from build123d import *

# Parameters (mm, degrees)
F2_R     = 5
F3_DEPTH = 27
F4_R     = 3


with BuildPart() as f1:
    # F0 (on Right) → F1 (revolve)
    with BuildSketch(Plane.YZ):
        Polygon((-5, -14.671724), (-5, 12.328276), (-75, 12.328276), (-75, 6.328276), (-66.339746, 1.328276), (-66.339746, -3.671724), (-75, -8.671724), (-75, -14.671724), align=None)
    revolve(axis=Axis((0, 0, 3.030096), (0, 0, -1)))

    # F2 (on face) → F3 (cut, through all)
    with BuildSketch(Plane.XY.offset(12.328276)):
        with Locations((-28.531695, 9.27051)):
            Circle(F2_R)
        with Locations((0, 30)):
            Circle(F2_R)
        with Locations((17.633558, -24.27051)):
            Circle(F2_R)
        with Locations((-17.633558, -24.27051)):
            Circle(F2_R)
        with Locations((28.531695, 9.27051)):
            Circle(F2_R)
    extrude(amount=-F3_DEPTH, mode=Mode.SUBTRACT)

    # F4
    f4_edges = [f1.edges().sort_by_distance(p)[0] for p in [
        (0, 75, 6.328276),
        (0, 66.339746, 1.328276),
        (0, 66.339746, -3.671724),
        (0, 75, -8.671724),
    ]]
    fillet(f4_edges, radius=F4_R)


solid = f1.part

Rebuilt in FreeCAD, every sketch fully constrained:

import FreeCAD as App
import Part
import Sketcher
from FreeCAD import Vector
Q = App.Units.Quantity


def edges_at(feature, points):
    """Names of the edges that pass closest to the given points."""
    edges = feature.Shape.Edges
    near = lambda p: min(range(len(edges)), key=lambda i: edges[i].distToShape(Part.Vertex(*p))[0])
    return sorted({f"Edge{near(p) + 1}" for p in points})


def add_polygon(sketch, points):
    """Adds a closed chain of lines whose ends are joined by coincident constraints."""
    first, n = sketch.GeometryCount, len(points)
    for a, b in zip(points, points[1:] + points[:1]):
        sketch.addGeometry(Part.LineSegment(App.Vector(*a, 0), App.Vector(*b, 0)), False)
    for i in range(n):
        sketch.addConstraint(Sketcher.Constraint("Coincident", first + i, 2, first + (i + 1) % n, 1))

doc = App.newDocument("Part")
body = doc.addObject("PartDesign::Body", "Body")

# Sketch on YZ plane
sketch1 = body.newObject("Sketcher::SketchObject", "Sketch")
sketch1.AttachmentSupport = (doc.getObject("YZ_Plane"), [""])
sketch1.MapMode = "FlatFace"
add_polygon(sketch1, [(-5, -15), (-5, 12), (-75, 12), (-75, 6), (-66, 1), (-66, -4), (-75, -9), (-75, -15)])  # lines 0-7
sketch1.addConstraint([
    Sketcher.Constraint("Vertical", 0),
    Sketcher.Constraint("Horizontal", 1),
    Sketcher.Constraint("Vertical", 2),
    Sketcher.Constraint("Vertical", 4),
    Sketcher.Constraint("Vertical", 6),
    Sketcher.Constraint("Horizontal", 7),
    Sketcher.Constraint("Vertical", 2, 2, 5, 2),
    Sketcher.Constraint("Equal", 2, 6),
    Sketcher.Constraint("Equal", 3, 5),
    Sketcher.Constraint("DistanceX", 1, 2, 1, 1, Q("70 mm")),
    Sketcher.Constraint("DistanceY", 0, 1, 0, 2, Q("27 mm")),
    Sketcher.Constraint("DistanceY", 2, 2, 2, 1, Q("6 mm")),
    Sketcher.Constraint("DistanceY", 4, 2, 4, 1, Q("5 mm")),
    Sketcher.Constraint("Angle", 3, Q("-30 deg")),
    Sketcher.Constraint("DistanceX", 0, 2, -1, 1, Q("5 mm")),
    Sketcher.Constraint("DistanceY", -1, 1, 0, 2, Q("12.328276 mm")),
])
revolution = body.newObject("PartDesign::Revolution", "Revolution")
revolution.Profile = sketch1
revolution.ReferenceAxis = (sketch1, ["V_Axis"])
revolution.Angle = 360

# Sketch on XY plane
sketch2 = body.newObject("Sketcher::SketchObject", "Sketch001")
sketch2.AttachmentSupport = (doc.getObject("XY_Plane"), [""])
sketch2.MapMode = "FlatFace"
sketch2.AttachmentOffset = App.Placement(Vector(0, 0, 12.328276), App.Rotation())
sketch2.addGeometry([
    Part.Circle(Vector(-29, 9, 0), Vector(0, 0, 1), 5),  # 0
    Part.Circle(Vector(0, 30, 0), Vector(0, 0, 1), 5),  # 1
    Part.Circle(Vector(18, -24, 0), Vector(0, 0, 1), 5),  # 2
    Part.Circle(Vector(-18, -24, 0), Vector(0, 0, 1), 5),  # 3
    Part.Circle(Vector(29, 9, 0), Vector(0, 0, 1), 5),  # 4
], False)
sketch2.addConstraint([
    Sketcher.Constraint("Equal", 0, 1),
    Sketcher.Constraint("Equal", 1, 2),
    Sketcher.Constraint("Equal", 2, 3),
    Sketcher.Constraint("Equal", 3, 4),
    Sketcher.Constraint("Symmetric", 2, 3, 3, 3, -2),
    Sketcher.Constraint("Symmetric", 0, 3, 4, 3, -2),
    Sketcher.Constraint("PointOnObject", 1, 3, -2),
    Sketcher.Constraint("Diameter", 0, Q("10 mm")),
    Sketcher.Constraint("DistanceY", -1, 1, 1, 3, Q("30 mm")),
    Sketcher.Constraint("DistanceY", -1, 1, 0, 3, Q("9.27051 mm")),
    Sketcher.Constraint("DistanceX", -1, 1, 2, 3, Q("17.633558 mm")),
    Sketcher.Constraint("DistanceY", 2, 3, -1, 1, Q("24.27051 mm")),
    Sketcher.Constraint("DistanceX", 0, 3, 4, 3, Q("57.06339 mm")),
])
pocket1 = body.newObject("PartDesign::Pocket", "Pocket")
pocket1.Profile = sketch2
pocket1.Type = "ThroughAll"
doc.recompute()

fillet = body.newObject("PartDesign::Fillet", "Fillet")
fillet.Base = (pocket1, edges_at(pocket1, [
    (0, 75, 6.328),
    (0, 66.34, 1.328),
    (0, 66.34, -3.672),
    (0, 75, -8.672),
]))
fillet.Radius = 3

doc.recompute()
